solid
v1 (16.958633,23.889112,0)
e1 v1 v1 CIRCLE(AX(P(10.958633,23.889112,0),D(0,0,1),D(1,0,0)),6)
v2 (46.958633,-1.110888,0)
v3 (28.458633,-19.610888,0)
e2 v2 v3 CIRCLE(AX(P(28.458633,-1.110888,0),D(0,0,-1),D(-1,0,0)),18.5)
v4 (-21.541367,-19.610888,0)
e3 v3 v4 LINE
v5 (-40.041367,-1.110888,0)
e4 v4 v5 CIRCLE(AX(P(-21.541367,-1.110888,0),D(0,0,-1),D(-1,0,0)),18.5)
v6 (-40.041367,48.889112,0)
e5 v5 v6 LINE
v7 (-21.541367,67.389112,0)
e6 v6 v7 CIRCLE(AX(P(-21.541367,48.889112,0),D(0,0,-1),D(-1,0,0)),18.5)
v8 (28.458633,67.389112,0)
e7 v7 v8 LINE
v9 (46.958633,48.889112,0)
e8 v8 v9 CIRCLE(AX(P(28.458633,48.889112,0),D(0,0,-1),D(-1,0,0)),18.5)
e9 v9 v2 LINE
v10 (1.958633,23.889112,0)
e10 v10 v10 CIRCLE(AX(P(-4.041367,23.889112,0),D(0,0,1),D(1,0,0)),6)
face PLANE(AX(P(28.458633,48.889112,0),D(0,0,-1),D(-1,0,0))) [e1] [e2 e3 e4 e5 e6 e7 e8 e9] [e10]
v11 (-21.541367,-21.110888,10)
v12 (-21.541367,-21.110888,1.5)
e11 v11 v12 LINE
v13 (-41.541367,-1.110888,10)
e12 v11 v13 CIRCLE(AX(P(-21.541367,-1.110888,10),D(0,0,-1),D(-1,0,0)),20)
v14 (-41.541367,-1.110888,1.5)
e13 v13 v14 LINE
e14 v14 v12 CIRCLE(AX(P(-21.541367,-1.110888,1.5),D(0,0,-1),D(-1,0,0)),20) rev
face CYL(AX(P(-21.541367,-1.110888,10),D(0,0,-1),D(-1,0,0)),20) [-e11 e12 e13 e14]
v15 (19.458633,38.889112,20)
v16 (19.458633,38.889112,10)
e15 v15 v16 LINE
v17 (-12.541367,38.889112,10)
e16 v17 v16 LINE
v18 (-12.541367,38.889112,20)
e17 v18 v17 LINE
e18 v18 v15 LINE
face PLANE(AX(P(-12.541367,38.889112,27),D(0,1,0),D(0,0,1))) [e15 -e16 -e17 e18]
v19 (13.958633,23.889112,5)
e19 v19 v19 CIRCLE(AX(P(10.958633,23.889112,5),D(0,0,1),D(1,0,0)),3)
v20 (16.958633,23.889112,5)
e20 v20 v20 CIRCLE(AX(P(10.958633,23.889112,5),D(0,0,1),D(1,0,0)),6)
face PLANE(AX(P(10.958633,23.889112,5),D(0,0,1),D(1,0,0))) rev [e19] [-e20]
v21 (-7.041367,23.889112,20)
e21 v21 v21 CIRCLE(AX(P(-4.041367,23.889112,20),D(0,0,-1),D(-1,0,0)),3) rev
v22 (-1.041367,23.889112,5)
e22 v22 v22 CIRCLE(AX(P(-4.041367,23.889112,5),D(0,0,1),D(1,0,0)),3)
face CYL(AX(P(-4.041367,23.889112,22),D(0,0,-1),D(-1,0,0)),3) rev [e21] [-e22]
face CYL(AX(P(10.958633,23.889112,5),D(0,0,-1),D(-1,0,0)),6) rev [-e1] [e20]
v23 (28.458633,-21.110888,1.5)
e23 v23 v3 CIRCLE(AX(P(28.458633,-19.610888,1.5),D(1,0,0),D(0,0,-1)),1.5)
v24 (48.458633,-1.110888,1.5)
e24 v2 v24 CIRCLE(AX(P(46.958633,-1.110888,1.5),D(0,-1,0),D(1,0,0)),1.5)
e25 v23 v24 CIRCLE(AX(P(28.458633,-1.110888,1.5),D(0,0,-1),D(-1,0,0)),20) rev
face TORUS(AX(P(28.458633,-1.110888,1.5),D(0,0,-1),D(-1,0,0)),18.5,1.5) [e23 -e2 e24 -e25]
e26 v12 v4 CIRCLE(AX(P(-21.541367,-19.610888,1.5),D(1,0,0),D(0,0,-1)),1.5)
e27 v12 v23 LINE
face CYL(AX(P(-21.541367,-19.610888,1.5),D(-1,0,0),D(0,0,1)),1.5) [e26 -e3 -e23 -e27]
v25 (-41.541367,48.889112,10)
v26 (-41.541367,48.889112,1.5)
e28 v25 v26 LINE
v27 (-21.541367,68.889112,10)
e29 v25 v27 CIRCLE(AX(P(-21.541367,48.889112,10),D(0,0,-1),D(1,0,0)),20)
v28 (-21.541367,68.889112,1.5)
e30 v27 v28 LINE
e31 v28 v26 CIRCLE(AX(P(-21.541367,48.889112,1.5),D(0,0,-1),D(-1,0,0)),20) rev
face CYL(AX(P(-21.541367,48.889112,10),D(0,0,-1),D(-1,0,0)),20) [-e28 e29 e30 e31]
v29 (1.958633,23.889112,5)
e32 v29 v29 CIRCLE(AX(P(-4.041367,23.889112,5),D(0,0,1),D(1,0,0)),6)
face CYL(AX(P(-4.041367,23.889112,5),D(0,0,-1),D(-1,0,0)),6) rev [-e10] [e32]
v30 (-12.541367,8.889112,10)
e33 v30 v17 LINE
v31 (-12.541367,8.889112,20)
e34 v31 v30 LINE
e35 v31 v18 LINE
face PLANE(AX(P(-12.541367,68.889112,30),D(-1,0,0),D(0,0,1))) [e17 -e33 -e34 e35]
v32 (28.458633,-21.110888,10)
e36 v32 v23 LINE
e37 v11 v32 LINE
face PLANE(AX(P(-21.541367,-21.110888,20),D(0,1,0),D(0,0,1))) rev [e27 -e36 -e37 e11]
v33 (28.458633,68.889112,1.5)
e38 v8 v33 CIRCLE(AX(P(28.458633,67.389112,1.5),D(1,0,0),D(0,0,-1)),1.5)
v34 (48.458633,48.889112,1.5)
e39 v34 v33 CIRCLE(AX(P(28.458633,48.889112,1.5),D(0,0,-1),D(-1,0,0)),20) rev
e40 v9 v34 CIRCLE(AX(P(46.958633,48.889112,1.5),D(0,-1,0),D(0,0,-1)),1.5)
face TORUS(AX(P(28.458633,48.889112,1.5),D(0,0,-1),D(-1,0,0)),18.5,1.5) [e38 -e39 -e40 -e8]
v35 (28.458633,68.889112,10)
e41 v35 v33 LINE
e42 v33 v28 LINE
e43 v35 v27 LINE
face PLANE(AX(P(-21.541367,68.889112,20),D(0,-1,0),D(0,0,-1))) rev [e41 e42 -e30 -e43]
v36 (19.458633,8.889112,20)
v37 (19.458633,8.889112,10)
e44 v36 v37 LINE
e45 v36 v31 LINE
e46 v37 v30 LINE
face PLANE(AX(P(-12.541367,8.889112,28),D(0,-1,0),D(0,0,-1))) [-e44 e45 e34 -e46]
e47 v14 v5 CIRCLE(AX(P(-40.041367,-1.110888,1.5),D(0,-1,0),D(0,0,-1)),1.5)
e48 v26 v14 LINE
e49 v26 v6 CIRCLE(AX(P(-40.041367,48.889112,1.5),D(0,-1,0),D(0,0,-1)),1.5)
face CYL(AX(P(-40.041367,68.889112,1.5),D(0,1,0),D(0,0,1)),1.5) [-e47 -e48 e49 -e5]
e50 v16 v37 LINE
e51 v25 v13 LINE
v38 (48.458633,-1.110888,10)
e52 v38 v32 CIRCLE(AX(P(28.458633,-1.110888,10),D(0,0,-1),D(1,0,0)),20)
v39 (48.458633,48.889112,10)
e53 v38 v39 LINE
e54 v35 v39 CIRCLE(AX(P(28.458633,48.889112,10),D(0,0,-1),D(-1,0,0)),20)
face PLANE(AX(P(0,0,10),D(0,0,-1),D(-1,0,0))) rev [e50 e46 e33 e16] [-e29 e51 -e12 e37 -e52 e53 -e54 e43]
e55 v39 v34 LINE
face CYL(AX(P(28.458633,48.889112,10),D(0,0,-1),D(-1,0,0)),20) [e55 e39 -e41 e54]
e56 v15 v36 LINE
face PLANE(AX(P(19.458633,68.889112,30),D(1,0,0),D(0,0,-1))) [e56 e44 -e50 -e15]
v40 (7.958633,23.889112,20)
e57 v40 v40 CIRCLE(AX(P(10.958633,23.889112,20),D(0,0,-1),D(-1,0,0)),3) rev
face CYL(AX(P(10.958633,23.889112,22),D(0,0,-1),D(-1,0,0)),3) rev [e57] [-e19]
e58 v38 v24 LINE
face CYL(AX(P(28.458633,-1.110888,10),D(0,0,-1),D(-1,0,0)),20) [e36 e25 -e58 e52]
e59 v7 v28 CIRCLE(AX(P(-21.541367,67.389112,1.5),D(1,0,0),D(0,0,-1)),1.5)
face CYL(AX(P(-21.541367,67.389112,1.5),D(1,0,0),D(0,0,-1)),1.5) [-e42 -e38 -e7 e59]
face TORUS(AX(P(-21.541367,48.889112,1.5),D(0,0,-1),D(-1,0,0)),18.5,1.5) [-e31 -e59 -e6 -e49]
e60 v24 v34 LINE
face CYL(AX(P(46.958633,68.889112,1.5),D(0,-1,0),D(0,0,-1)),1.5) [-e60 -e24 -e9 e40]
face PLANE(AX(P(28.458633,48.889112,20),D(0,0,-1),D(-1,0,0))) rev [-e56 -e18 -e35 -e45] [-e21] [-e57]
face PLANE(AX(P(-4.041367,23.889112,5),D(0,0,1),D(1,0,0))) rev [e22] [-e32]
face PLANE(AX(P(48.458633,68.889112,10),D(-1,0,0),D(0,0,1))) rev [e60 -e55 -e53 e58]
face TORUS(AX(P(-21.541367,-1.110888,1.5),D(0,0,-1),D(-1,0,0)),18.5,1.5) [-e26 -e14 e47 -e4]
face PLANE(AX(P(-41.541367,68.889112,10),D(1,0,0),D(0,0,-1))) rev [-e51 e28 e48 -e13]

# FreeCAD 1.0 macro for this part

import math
import FreeCAD as App
import Part
import Sketcher

V = App.Vector
Q = App.Units.Quantity


def edges_at(feature, points):
    """Names of the edges that pass closest to the given points."""
    edges = feature.Shape.Edges
    near = lambda p: min(range(len(edges)), key=lambda i: edges[i].distToShape(Part.Vertex(*p))[0])
    return sorted({f"Edge{near(p) + 1}" for p in points})


def add_polygon(sketch, points):
    """Adds a closed chain of lines whose ends are joined by coincident constraints."""
    first, n = sketch.GeometryCount, len(points)
    for a, b in zip(points, points[1:] + points[:1]):
        sketch.addGeometry(Part.LineSegment(App.Vector(*a, 0), App.Vector(*b, 0)), False)
    for i in range(n):
        sketch.addConstraint(Sketcher.Constraint("Coincident", first + i, 2, first + (i + 1) % n, 1))

doc = App.newDocument("Part")
body = doc.addObject("PartDesign::Body", "Body")

sketch1 = body.newObject("Sketcher::SketchObject", "Sketch")
sketch1.AttachmentSupport = (doc.getObject("XY_Plane"), [""])
sketch1.MapMode = "FlatFace"
sketch1.addGeometry([
    Part.LineSegment(V(-42, 49, 0), V(-42, -1, 0)),
    Part.ArcOfCircle(Part.Circle(V(-22, -1, 0), V(0, 0, 1), 20), math.radians(180), math.radians(270)),
    Part.LineSegment(V(-22, -21, 0), V(28, -21, 0)),
    Part.ArcOfCircle(Part.Circle(V(28, -1, 0), V(0, 0, 1), 20), math.radians(-90), math.radians(0)),
    Part.LineSegment(V(48, -1, 0), V(48, 49, 0)),
    Part.ArcOfCircle(Part.Circle(V(28, 49, 0), V(0, 0, 1), 20), math.radians(0), math.radians(90)),
    Part.LineSegment(V(28, 69, 0), V(-22, 69, 0)),
    Part.ArcOfCircle(Part.Circle(V(-22, 49, 0), V(0, 0, 1), 20), math.radians(90), math.radians(180)),
], False)
sketch1.addConstraint([
    Sketcher.Constraint("Tangent", 0, 2, 1, 1),
    Sketcher.Constraint("Tangent", 1, 2, 2, 1),
    Sketcher.Constraint("Tangent", 2, 2, 3, 1),
    Sketcher.Constraint("Tangent", 3, 2, 4, 1),
    Sketcher.Constraint("Tangent", 4, 2, 5, 1),
    Sketcher.Constraint("Tangent", 5, 2, 6, 1),
    Sketcher.Constraint("Tangent", 6, 2, 7, 1),
    Sketcher.Constraint("Tangent", 7, 2, 0, 1),
    Sketcher.Constraint("Vertical", 0),
    Sketcher.Constraint("Horizontal", 2),
    Sketcher.Constraint("Vertical", 4),
    Sketcher.Constraint("Horizontal", 6),
    Sketcher.Constraint("Equal", 1, 3),
    Sketcher.Constraint("Equal", 3, 5),
    Sketcher.Constraint("Equal", 5, 7),
    Sketcher.Constraint("Equal", 6, 0),
    Sketcher.Constraint("Radius", 1, 20.0),
    Sketcher.Constraint("DistanceX", 2, 1, 2, 2, 50.0),
    Sketcher.Constraint("DistanceX", 1, 3, -1, 1, 21.541367),
    Sketcher.Constraint("DistanceY", 1, 3, -1, 1, 1.110888),
])
pad1 = body.newObject("PartDesign::Pad", "Pad")
pad1.Profile = sketch1
pad1.Length = 20

sketch2 = body.newObject("Sketcher::SketchObject", "Sketch001")
sketch2.AttachmentSupport = (doc.getObject("XY_Plane"), [""])
sketch2.MapMode = "FlatFace"
sketch2.addGeometry([
    Part.Circle(V(-4, 23.9, 0), V(0, 0, 1), 2.5),
    Part.Circle(V(11, 23.9, 0), V(0, 0, 1), 2.5),
], False)
sketch2.addConstraint([
    Sketcher.Constraint("Equal", 0, 1),
    Sketcher.Constraint("Horizontal", 0, 3, 1, 3),
    Sketcher.Constraint("Diameter", 0, 5.0),
    Sketcher.Constraint("DistanceX", 0, 3, 1, 3, 15.0),
    Sketcher.Constraint("DistanceX", 0, 3, -1, 1, 4.041367),
    Sketcher.Constraint("DistanceY", -1, 1, 0, 3, 23.889112),
])
pocket1 = body.newObject("PartDesign::Pocket", "Pocket")
pocket1.Profile = sketch2
pocket1.Type = "ThroughAll"
pocket1.Midplane = True

sketch3 = body.newObject("Sketcher::SketchObject", "Sketch002")
sketch3.AttachmentSupport = (doc.getObject("XY_Plane"), [""])
sketch3.MapMode = "FlatFace"
add_polygon(sketch3, [(-13, 69), (-13, 39), (19, 39), (19, 69)])
sketch3.addConstraint([
    Sketcher.Constraint("Vertical", 0),
    Sketcher.Constraint("Horizontal", 1),
    Sketcher.Constraint("Vertical", 2),
    Sketcher.Constraint("Horizontal", 3),
    Sketcher.Constraint("DistanceX", 1, 1, 1, 2, 32.0),
    Sketcher.Constraint("DistanceY", 0, 2, 0, 1, 30.0),
    Sketcher.Constraint("DistanceX", 0, 2, -1, 1, 12.541367),
    Sketcher.Constraint("DistanceY", -1, 1, 0, 2, 38.889112),
])
pocket2 = body.newObject("PartDesign::Pocket", "Pocket001")
pocket2.Profile = sketch3
pocket2.Length = 27
pocket2.Reversed = True

sketch4 = body.newObject("Sketcher::SketchObject", "Sketch003")
sketch4.AttachmentSupport = (doc.getObject("XY_Plane"), [""])
sketch4.MapMode = "FlatFace"
add_polygon(sketch4, [(-13, 69), (-13, 39), (19, 39), (19, 69)])
sketch4.addConstraint([
    Sketcher.Constraint("Vertical", 0),
    Sketcher.Constraint("Horizontal", 1),
    Sketcher.Constraint("Vertical", 2),
    Sketcher.Constraint("Horizontal", 3),
    Sketcher.Constraint("DistanceX", 1, 1, 1, 2, 32.0),
    Sketcher.Constraint("DistanceY", 0, 2, 0, 1, 30.0),
    Sketcher.Constraint("DistanceX", 0, 2, -1, 1, 12.541367),
    Sketcher.Constraint("DistanceY", -1, 1, 0, 2, 38.889112),
])
pad2 = body.newObject("PartDesign::Pad", "Pad001")
pad2.Profile = sketch4
pad2.Length = 16

sketch5 = body.newObject("Sketcher::SketchObject", "Sketch004")
sketch5.AttachmentSupport = (doc.getObject("XY_Plane"), [""])
sketch5.MapMode = "FlatFace"
add_polygon(sketch5, [(15.7, 23.9), (13.3, 28), (8.6, 28), (6.2, 23.9), (8.6, 19.8), (13.3, 19.8)])
add_polygon(sketch5, [(0.7, 23.9), (-1.7, 28), (-6.4, 28), (-8.8, 23.9), (-6.4, 19.8), (-1.7, 19.8)])
sketch5.addConstraint([
    Sketcher.Constraint("Horizontal", 1),
    Sketcher.Constraint("Horizontal", 4),
    Sketcher.Constraint("Horizontal", 7),
    Sketcher.Constraint("Horizontal", 10),
    Sketcher.Constraint("Parallel", 0, 3),
    Sketcher.Constraint("Parallel", 2, 5),
    Sketcher.Constraint("Parallel", 3, 6),
    Sketcher.Constraint("Parallel", 5, 8),
    Sketcher.Constraint("Parallel", 6, 9),
    Sketcher.Constraint("Parallel", 8, 11),
    Sketcher.Constraint("Horizontal", 2, 2, 5, 2),
    Sketcher.Constraint("Horizontal", 1, 2, 6, 2),
    Sketcher.Constraint("Horizontal", 5, 2, 8, 2),
    Sketcher.Constraint("Horizontal", 4, 2, 9, 2),
    Sketcher.Constraint("Horizontal", 8, 2, 11, 2),
    Sketcher.Constraint("Vertical", 1, 2, 3, 2),
    Sketcher.Constraint("Vertical", 0, 2, 4, 2),
    Sketcher.Constraint("Equal", 4, 7),
    Sketcher.Constraint("Angle", 0, Q("120 deg")),
    Sketcher.Constraint("DistanceX", 6, 2, 0, 2, 15.0),
    Sketcher.Constraint("DistanceY", 2, 2, 1, 2, 4.1),
    Sketcher.Constraint("DistanceX", 1, 2, 1, 1, 4.734272),
    Sketcher.Constraint("DistanceX", -1, 1, 0, 2, 13.325769),
    Sketcher.Constraint("DistanceY", -1, 1, 0, 2, 27.989112),
])
pocket3 = body.newObject("PartDesign::Pocket", "Pocket002")
pocket3.Profile = sketch5
pocket3.Length = 4
pocket3.Reversed = True

sketch6 = body.newObject("Sketcher::SketchObject", "Sketch005")
sketch6.AttachmentSupport = (doc.getObject("XY_Plane"), [""])
sketch6.MapMode = "FlatFace"
add_polygon(sketch6, [(-15, 33), (-15, 15), (19, 15), (19, 33)])
sketch6.addConstraint([
    Sketcher.Constraint("Vertical", 0),
    Sketcher.Constraint("Horizontal", 1),
    Sketcher.Constraint("Vertical", 2),
    Sketcher.Constraint("Horizontal", 3),
    Sketcher.Constraint("DistanceX", 1, 1, 1, 2, 33.515955),
    Sketcher.Constraint("DistanceY", 0, 2, 0, 1, 18.308275),
    Sketcher.Constraint("DistanceY", -1, 1, 2, 2, 32.821779),
    Sketcher.Constraint("DistanceX", 0, 2, -1, 1, 14.554347),
])
pad3 = body.newObject("PartDesign::Pad", "Pad002")
pad3.Profile = sketch6
pad3.Length = 10

sketch7 = body.newObject("Sketcher::SketchObject", "Sketch006")
sketch7.AttachmentSupport = (doc.getObject("XY_Plane"), [""])
sketch7.MapMode = "FlatFace"
sketch7.addGeometry([
    Part.Circle(V(-4, 23.9, 0), V(0, 0, 1), 2.5),
    Part.Circle(V(11, 23.9, 0), V(0, 0, 1), 2.5),
], False)
sketch7.addConstraint([
    Sketcher.Constraint("Equal", 0, 1),
    Sketcher.Constraint("Horizontal", 0, 3, 1, 3),
    Sketcher.Constraint("Diameter", 0, 5.0),
    Sketcher.Constraint("DistanceX", 0, 3, 1, 3, 15.0),
    Sketcher.Constraint("DistanceX", 0, 3, -1, 1, 4.041367),
    Sketcher.Constraint("DistanceY", -1, 1, 0, 3, 23.889112),
])
pocket4 = body.newObject("PartDesign::Pocket", "Pocket003")
pocket4.Profile = sketch7
pocket4.Type = "ThroughAll"
pocket4.Midplane = True

sketch8 = body.newObject("Sketcher::SketchObject", "Sketch007")
sketch8.AttachmentSupport = (doc.getObject("XY_Plane"), [""])
sketch8.MapMode = "FlatFace"
add_polygon(sketch8, [(-49, 69), (-49, -23), (-13, -23), (-13, 69)])
add_polygon(sketch8, [(19, 69), (19, -23), (58, -23), (58, 69)])
sketch8.addConstraint([
    Sketcher.Constraint("Vertical", 0),
    Sketcher.Constraint("Horizontal", 1),
    Sketcher.Constraint("Vertical", 2),
    Sketcher.Constraint("Horizontal", 3),
    Sketcher.Constraint("Vertical", 4),
    Sketcher.Constraint("Horizontal", 5),
    Sketcher.Constraint("Vertical", 6),
    Sketcher.Constraint("Horizontal", 7),
    Sketcher.Constraint("Horizontal", 1, 2, 4, 2),
    Sketcher.Constraint("Horizontal", 3, 2, 6, 2),
    Sketcher.Constraint("DistanceX", 1, 2, 4, 2, 32.0),
    Sketcher.Constraint("DistanceX", 5, 1, 5, 2, 38.306269),
    Sketcher.Constraint("DistanceY", 0, 2, 0, 1, 91.485439),
    Sketcher.Constraint("DistanceX", -1, 1, 5, 2, 57.764902),
    Sketcher.Constraint("DistanceX", 1, 1, 1, 2, 36.495037),
    Sketcher.Constraint("DistanceY", 0, 2, -1, 1, 22.596327),
])
pocket5 = body.newObject("PartDesign::Pocket", "Pocket004")
pocket5.Profile = sketch8
pocket5.Length = 30
pocket5.Reversed = True

sketch9 = body.newObject("Sketcher::SketchObject", "Sketch008")
sketch9.AttachmentSupport = (doc.getObject("XY_Plane"), [""])
sketch9.MapMode = "FlatFace"
add_polygon(sketch9, [(-42, 69), (-42, -21), (-13, -21), (-13, 69)])
add_polygon(sketch9, [(19, 69), (19, -21), (48, -21), (48, 69)])
sketch9.addConstraint([
    Sketcher.Constraint("Vertical", 0),
    Sketcher.Constraint("Horizontal", 1),
    Sketcher.Constraint("Vertical", 2),
    Sketcher.Constraint("Horizontal", 3),
    Sketcher.Constraint("Vertical", 4),
    Sketcher.Constraint("Horizontal", 5),
    Sketcher.Constraint("Vertical", 6),
    Sketcher.Constraint("Horizontal", 7),
    Sketcher.Constraint("Horizontal", 1, 2, 4, 2),
    Sketcher.Constraint("Horizontal", 3, 2, 6, 2),
    Sketcher.Constraint("Equal", 3, 5),
    Sketcher.Constraint("DistanceX", 1, 1, 1, 2, 29.0),
    Sketcher.Constraint("DistanceY", 0, 2, 0, 1, 90.0),
    Sketcher.Constraint("DistanceX", 1, 2, 4, 2, 32.0),
    Sketcher.Constraint("DistanceX", 0, 2, -1, 1, 41.541367),
    Sketcher.Constraint("DistanceY", 0, 2, -1, 1, 21.110888),
])
pad4 = body.newObject("PartDesign::Pad", "Pad003")
pad4.Profile = sketch9
pad4.Length = 10

sketch10 = body.newObject("Sketcher::SketchObject", "Sketch009")
sketch10.AttachmentSupport = (doc.getObject("XY_Plane"), [""])
sketch10.MapMode = "FlatFace"
sketch10.addGeometry([
    Part.LineSegment(V(-22, 69, 0), V(-42, 69, 0)),
    Part.LineSegment(V(-42, 69, 0), V(-42, 49, 0)),
    Part.ArcOfCircle(Part.Circle(V(-22, 49, 0), V(0, 0, 1), 20), math.radians(90), math.radians(180)),
    Part.LineSegment(V(48, 49, 0), V(48, 69, 0)),
    Part.LineSegment(V(48, 69, 0), V(28, 69, 0)),
    Part.ArcOfCircle(Part.Circle(V(28, 49, 0), V(0, 0, 1), 20), math.radians(0), math.radians(90)),
    Part.LineSegment(V(28, -21, 0), V(48, -21, 0)),
    Part.LineSegment(V(48, -21, 0), V(48, -1, 0)),
    Part.ArcOfCircle(Part.Circle(V(28, -1, 0), V(0, 0, 1), 20), math.radians(-90), math.radians(0)),
    Part.LineSegment(V(-42, -1, 0), V(-42, -21, 0)),
    Part.LineSegment(V(-42, -21, 0), V(-22, -21, 0)),
    Part.ArcOfCircle(Part.Circle(V(-22, -1, 0), V(0, 0, 1), 20), math.radians(180), math.radians(270)),
], False)
sketch10.addConstraint([
    Sketcher.Constraint("Coincident", 0, 2, 1, 1),
    Sketcher.Constraint("Tangent", 1, 2, 2, 2),
    Sketcher.Constraint("Tangent", 2, 1, 0, 1),
    Sketcher.Constraint("Coincident", 3, 2, 4, 1),
    Sketcher.Constraint("Tangent", 4, 2, 5, 2),
    Sketcher.Constraint("Tangent", 5, 1, 3, 1),
    Sketcher.Constraint("Coincident", 6, 2, 7, 1),
    Sketcher.Constraint("Tangent", 7, 2, 8, 2),
    Sketcher.Constraint("Tangent", 8, 1, 6, 1),
    Sketcher.Constraint("Coincident", 9, 2, 10, 1),
    Sketcher.Constraint("Tangent", 10, 2, 11, 2),
    Sketcher.Constraint("Tangent", 11, 1, 9, 1),
    Sketcher.Constraint("Horizontal", 0),
    Sketcher.Constraint("Vertical", 1),
    Sketcher.Constraint("Vertical", 3),
    Sketcher.Constraint("Horizontal", 4),
    Sketcher.Constraint("Horizontal", 6),
    Sketcher.Constraint("Vertical", 7),
    Sketcher.Constraint("Vertical", 9),
    Sketcher.Constraint("Horizontal", 10),
    Sketcher.Constraint("Equal", 2, 5),
    Sketcher.Constraint("Equal", 5, 8),
    Sketcher.Constraint("Equal", 8, 11),
    Sketcher.Constraint("Horizontal", 2, 3, 5, 3),
    Sketcher.Constraint("Horizontal", 8, 3, 11, 3),
    Sketcher.Constraint("Vertical", 5, 3, 8, 3),
    Sketcher.Constraint("Vertical", 2, 3, 11, 3),
    Sketcher.Constraint("Radius", 2, 20.0),
    Sketcher.Constraint("DistanceX", 2, 3, 5, 3, 50.0),
    Sketcher.Constraint("DistanceY", 8, 3, 5, 3, 50.0),
    Sketcher.Constraint("DistanceX", 2, 3, -1, 1, 21.541367),
    Sketcher.Constraint("DistanceY", -1, 1, 2, 3, 48.889112),
])
pocket6 = body.newObject("PartDesign::Pocket", "Pocket005")
pocket6.Profile = sketch10
pocket6.Length = 10
pocket6.Reversed = True

sketch11 = body.newObject("Sketcher::SketchObject", "Sketch010")
sketch11.AttachmentSupport = (doc.getObject("XY_Plane"), [""])
sketch11.MapMode = "FlatFace"
add_polygon(sketch11, [(-13, 69), (-13, 39), (19, 39), (19, 69)])
add_polygon(sketch11, [(-13, 9), (-13, -21), (19, -21), (19, 9)])
sketch11.addConstraint([
    Sketcher.Constraint("Vertical", 0),
    Sketcher.Constraint("Horizontal", 1),
    Sketcher.Constraint("Vertical", 2),
    Sketcher.Constraint("Horizontal", 3),
    Sketcher.Constraint("Vertical", 4),
    Sketcher.Constraint("Horizontal", 5),
    Sketcher.Constraint("Vertical", 6),
    Sketcher.Constraint("Horizontal", 7),
    Sketcher.Constraint("Vertical", 3, 2, 4, 2),
    Sketcher.Constraint("Vertical", 2, 2, 5, 2),
    Sketcher.Constraint("Equal", 2, 4),
    Sketcher.Constraint("DistanceX", 1, 1, 1, 2, 32.0),
    Sketcher.Constraint("DistanceY", 0, 2, 0, 1, 30.0),
    Sketcher.Constraint("DistanceY", 4, 2, 0, 2, 60.0),
    Sketcher.Constraint("DistanceX", 0, 2, -1, 1, 12.541367),
    Sketcher.Constraint("DistanceY", -1, 1, 0, 2, 38.889112),
])
pocket7 = body.newObject("PartDesign::Pocket", "Pocket006")
pocket7.Profile = sketch11
pocket7.Length = 28
pocket7.Reversed = True

sketch12 = body.newObject("Sketcher::SketchObject", "Sketch011")
sketch12.AttachmentSupport = (doc.getObject("XY_Plane"), [""])
sketch12.MapMode = "FlatFace"
add_polygon(sketch12, [(-13, 69), (-13, 39), (19, 39), (19, 69)])
add_polygon(sketch12, [(-13, 9), (-13, -21), (19, -21), (19, 9)])
sketch12.addConstraint([
    Sketcher.Constraint("Vertical", 0),
    Sketcher.Constraint("Horizontal", 1),
    Sketcher.Constraint("Vertical", 2),
    Sketcher.Constraint("Horizontal", 3),
    Sketcher.Constraint("Vertical", 4),
    Sketcher.Constraint("Horizontal", 5),
    Sketcher.Constraint("Vertical", 6),
    Sketcher.Constraint("Horizontal", 7),
    Sketcher.Constraint("Vertical", 3, 2, 4, 2),
    Sketcher.Constraint("Vertical", 2, 2, 5, 2),
    Sketcher.Constraint("Equal", 2, 4),
    Sketcher.Constraint("DistanceX", 1, 1, 1, 2, 32.0),
    Sketcher.Constraint("DistanceY", 0, 2, 0, 1, 30.0),
    Sketcher.Constraint("DistanceY", 4, 2, 0, 2, 60.0),
    Sketcher.Constraint("DistanceX", 0, 2, -1, 1, 12.541367),
    Sketcher.Constraint("DistanceY", -1, 1, 0, 2, 38.889112),
])
pad5 = body.newObject("PartDesign::Pad", "Pad004")
pad5.Profile = sketch12
pad5.Length = 10

sketch13 = body.newObject("Sketcher::SketchObject", "Sketch012")
sketch13.AttachmentSupport = (doc.getObject("XY_Plane"), [""])
sketch13.MapMode = "FlatFace"
sketch13.addGeometry([
    Part.Circle(V(-4, 23.9, 0), V(0, 0, 1), 3),
    Part.Circle(V(11, 23.9, 0), V(0, 0, 1), 3),
], False)
sketch13.addConstraint([
    Sketcher.Constraint("Equal", 0, 1),
    Sketcher.Constraint("Horizontal", 0, 3, 1, 3),
    Sketcher.Constraint("Diameter", 0, 6.0),
    Sketcher.Constraint("DistanceX", 0, 3, 1, 3, 15.0),
    Sketcher.Constraint("DistanceX", 0, 3, -1, 1, 4.041367),
    Sketcher.Constraint("DistanceY", -1, 1, 0, 3, 23.889112),
])
pocket8 = body.newObject("PartDesign::Pocket", "Pocket007")
pocket8.Profile = sketch13
pocket8.Length = 22
pocket8.Reversed = True

sketch14 = body.newObject("Sketcher::SketchObject", "Sketch013")
sketch14.AttachmentSupport = (doc.getObject("XY_Plane"), [""])
sketch14.MapMode = "FlatFace"
sketch14.addGeometry([
    Part.Circle(V(11, 24, 0), V(0, 0, 1), 6),
    Part.Circle(V(-4, 24, 0), V(0, 0, 1), 6),
], False)
sketch14.addConstraint([
    Sketcher.Constraint("Equal", 0, 1),
    Sketcher.Constraint("Horizontal", 0, 3, 1, 3),
    Sketcher.Constraint("Diameter", 0, 12.0),
    Sketcher.Constraint("DistanceX", 1, 3, 0, 3, 15.0),
    Sketcher.Constraint("DistanceX", -1, 1, 0, 3, 10.958633),
    Sketcher.Constraint("DistanceY", -1, 1, 0, 3, 23.889112),
])
pocket9 = body.newObject("PartDesign::Pocket", "Pocket008")
pocket9.Profile = sketch14
pocket9.Length = 5
pocket9.Reversed = True
doc.recompute()

fillet = body.newObject("PartDesign::Fillet", "Fillet")
fillet.Base = (pocket9, edges_at(pocket9, [
    (-41.541, 23.889, 0),
    (-35.684, 63.031, 0),
    (3.459, 68.889, 0),
    (42.601, 63.031, 0),
    (48.459, 23.889, 0),
    (42.601, -15.253, 0),
    (3.459, -21.111, 0),
    (-35.684, -15.253, 0),
]))
fillet.Radius = 1.5

doc.recompute()
